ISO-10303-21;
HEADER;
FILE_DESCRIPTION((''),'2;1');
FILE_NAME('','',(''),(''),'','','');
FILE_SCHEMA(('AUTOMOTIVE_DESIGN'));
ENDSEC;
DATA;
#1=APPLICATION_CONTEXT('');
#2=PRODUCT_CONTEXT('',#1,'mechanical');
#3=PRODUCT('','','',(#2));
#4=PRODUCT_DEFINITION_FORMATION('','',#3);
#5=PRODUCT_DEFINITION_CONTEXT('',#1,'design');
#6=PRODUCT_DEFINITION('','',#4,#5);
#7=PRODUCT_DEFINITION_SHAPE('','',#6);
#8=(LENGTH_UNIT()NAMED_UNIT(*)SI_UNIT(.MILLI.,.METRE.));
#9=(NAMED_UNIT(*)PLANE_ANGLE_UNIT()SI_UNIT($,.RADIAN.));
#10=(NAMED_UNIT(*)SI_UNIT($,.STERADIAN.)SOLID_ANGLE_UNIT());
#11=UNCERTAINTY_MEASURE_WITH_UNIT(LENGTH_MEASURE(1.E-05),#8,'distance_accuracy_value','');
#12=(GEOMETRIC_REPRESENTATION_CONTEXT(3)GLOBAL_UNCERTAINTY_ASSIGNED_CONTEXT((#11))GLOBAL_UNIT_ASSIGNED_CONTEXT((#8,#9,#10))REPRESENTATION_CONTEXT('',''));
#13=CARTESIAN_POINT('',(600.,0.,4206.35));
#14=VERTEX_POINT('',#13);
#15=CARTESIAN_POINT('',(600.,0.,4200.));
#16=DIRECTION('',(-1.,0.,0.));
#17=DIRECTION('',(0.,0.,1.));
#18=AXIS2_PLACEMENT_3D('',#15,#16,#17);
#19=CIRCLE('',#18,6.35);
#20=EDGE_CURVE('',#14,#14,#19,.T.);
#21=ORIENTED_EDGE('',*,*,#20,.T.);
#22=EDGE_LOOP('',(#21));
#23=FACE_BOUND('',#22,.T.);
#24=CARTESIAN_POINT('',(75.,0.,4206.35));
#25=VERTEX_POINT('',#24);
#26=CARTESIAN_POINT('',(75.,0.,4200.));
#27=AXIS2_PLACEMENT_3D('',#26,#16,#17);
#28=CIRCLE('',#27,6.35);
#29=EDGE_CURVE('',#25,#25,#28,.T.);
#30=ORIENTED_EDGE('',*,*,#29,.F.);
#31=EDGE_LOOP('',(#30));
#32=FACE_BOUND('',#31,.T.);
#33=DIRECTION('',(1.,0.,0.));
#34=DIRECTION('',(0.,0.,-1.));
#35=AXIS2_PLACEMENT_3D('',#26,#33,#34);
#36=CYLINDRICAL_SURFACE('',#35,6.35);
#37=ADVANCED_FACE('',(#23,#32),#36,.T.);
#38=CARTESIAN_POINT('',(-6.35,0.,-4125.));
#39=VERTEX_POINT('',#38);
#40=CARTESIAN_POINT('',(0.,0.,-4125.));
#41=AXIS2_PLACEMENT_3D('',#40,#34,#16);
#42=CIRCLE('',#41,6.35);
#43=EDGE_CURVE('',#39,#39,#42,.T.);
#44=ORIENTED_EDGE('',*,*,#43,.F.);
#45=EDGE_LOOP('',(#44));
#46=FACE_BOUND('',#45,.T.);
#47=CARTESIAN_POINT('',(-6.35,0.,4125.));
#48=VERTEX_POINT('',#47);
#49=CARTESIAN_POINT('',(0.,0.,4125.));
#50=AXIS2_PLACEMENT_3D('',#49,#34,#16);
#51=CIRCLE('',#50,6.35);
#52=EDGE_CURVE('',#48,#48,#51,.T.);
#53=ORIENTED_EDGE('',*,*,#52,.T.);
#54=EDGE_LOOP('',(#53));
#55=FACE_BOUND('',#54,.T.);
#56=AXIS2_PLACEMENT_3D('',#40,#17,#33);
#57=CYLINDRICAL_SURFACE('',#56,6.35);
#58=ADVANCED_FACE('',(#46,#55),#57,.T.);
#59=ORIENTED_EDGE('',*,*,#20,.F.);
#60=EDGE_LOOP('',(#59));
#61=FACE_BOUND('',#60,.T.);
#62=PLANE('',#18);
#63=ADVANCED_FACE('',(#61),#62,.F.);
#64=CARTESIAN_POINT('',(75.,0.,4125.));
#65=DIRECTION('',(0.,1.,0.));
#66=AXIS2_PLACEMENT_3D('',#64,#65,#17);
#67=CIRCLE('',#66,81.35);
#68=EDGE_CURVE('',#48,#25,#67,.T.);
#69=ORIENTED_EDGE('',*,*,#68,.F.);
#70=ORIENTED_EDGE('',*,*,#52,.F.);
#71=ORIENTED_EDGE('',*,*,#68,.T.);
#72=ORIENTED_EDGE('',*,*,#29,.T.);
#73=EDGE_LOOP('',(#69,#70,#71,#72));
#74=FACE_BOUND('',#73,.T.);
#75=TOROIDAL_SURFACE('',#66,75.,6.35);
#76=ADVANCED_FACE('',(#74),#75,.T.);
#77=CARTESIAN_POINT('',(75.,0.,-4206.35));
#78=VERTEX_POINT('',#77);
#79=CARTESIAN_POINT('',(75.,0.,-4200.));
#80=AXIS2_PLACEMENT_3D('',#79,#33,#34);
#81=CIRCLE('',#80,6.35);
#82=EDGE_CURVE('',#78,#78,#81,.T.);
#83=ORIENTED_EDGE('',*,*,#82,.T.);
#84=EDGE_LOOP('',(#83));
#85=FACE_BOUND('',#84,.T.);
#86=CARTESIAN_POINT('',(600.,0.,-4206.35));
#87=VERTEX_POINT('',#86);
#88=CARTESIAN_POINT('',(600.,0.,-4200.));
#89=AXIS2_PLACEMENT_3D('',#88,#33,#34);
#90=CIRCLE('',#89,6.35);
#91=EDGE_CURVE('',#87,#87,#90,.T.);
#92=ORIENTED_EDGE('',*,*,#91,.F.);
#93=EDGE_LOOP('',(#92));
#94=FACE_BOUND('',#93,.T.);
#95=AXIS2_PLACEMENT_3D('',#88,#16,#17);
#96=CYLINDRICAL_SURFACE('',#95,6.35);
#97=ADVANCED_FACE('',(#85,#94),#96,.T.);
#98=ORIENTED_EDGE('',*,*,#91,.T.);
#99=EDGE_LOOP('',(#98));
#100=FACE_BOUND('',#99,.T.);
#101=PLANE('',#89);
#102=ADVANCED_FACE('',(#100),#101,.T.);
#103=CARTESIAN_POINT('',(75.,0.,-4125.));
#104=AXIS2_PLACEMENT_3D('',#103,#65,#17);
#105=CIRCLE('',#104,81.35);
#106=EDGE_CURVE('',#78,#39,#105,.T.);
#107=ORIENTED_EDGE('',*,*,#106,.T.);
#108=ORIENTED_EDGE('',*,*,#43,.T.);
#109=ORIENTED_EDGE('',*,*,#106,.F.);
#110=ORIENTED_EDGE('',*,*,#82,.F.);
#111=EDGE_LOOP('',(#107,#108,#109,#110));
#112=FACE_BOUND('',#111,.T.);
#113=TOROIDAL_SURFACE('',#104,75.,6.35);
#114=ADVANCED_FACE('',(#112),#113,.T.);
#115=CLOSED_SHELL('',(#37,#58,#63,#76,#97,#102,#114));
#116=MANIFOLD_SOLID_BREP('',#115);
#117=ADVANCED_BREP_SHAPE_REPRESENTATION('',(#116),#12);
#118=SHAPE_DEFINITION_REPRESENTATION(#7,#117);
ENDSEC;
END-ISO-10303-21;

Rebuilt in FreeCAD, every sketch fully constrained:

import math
import FreeCAD as App
import Part
import Sketcher

V = App.Vector
Q = App.Units.Quantity

doc = App.newDocument("Part")
body = doc.addObject("PartDesign::Body", "Body")

# Sketch on YZ plane
sketch1 = doc.addObject("Sketcher::SketchObject", "Sketch")
body.addObject(sketch1)
sketch1.AttachmentSupport = (doc.YZ_Plane, [""])
sketch1.MapMode = "FlatFace"
sketch1.AttachmentOffset = App.Placement(V(0, 0, 600), App.Rotation())
sketch1.addGeometry(Part.Circle(V(0, -4200, 0), V(0, 0, 1), 6), False)
sketch1.addConstraint([
    Sketcher.Constraint("PointOnObject", 0, 3, -2),
    Sketcher.Constraint("Diameter", 0, Q("12.7 mm")),
    Sketcher.Constraint("DistanceY", 0, 3, -1, 1, Q("4200 mm")),
])

# Sketch on XZ plane
sketch2 = doc.addObject("Sketcher::SketchObject", "Sketch001")
body.addObject(sketch2)
sketch2.AttachmentSupport = (doc.XZ_Plane, [""])
sketch2.MapMode = "FlatFace"
sketch2.addGeometry([
    Part.LineSegment(V(600, -4200, 0), V(75, -4200, 0)),  # 0
    Part.ArcOfCircle(Part.Circle(V(75, -4125, 0), V(0, 0, 1), 75), math.radians(180), math.radians(270)),  # 1
    Part.LineSegment(V(0, -4125, 0), V(0, 4125, 0)),  # 2
    Part.ArcOfCircle(Part.Circle(V(75, 4125, 0), V(0, 0, 1), 75), math.radians(90), math.radians(180)),  # 3
    Part.LineSegment(V(75, 4200, 0), V(600, 4200, 0)),  # 4
], False)
sketch2.addConstraint([
    Sketcher.Constraint("Tangent", 0, 2, 1, 2),
    Sketcher.Constraint("Tangent", 1, 1, 2, 1),
    Sketcher.Constraint("Tangent", 2, 2, 3, 2),
    Sketcher.Constraint("Tangent", 3, 1, 4, 1),
    Sketcher.Constraint("Horizontal", 0),
    Sketcher.Constraint("Vertical", 2),
    Sketcher.Constraint("Horizontal", 4),
    Sketcher.Constraint("Equal", 1, 3),
    Sketcher.Constraint("Symmetric", 1, 1, 2, 2, -1, 1),
    Sketcher.Constraint("Vertical", 0, 1, 4, 2),
    Sketcher.Constraint("Radius", 1, Q("75 mm")),
    Sketcher.Constraint("DistanceX", 0, 2, 0, 1, Q("525 mm")),
    Sketcher.Constraint("DistanceY", 2, 1, 2, 2, Q("8250 mm")),
])
doc.recompute()

additivepipe = doc.addObject("PartDesign::AdditivePipe", "AdditivePipe")
body.addObject(additivepipe)
additivepipe.Profile = sketch1
additivepipe.Spine = (sketch2, ["Edge1", "Edge2", "Edge3", "Edge4", "Edge5"])

doc.recompute()
